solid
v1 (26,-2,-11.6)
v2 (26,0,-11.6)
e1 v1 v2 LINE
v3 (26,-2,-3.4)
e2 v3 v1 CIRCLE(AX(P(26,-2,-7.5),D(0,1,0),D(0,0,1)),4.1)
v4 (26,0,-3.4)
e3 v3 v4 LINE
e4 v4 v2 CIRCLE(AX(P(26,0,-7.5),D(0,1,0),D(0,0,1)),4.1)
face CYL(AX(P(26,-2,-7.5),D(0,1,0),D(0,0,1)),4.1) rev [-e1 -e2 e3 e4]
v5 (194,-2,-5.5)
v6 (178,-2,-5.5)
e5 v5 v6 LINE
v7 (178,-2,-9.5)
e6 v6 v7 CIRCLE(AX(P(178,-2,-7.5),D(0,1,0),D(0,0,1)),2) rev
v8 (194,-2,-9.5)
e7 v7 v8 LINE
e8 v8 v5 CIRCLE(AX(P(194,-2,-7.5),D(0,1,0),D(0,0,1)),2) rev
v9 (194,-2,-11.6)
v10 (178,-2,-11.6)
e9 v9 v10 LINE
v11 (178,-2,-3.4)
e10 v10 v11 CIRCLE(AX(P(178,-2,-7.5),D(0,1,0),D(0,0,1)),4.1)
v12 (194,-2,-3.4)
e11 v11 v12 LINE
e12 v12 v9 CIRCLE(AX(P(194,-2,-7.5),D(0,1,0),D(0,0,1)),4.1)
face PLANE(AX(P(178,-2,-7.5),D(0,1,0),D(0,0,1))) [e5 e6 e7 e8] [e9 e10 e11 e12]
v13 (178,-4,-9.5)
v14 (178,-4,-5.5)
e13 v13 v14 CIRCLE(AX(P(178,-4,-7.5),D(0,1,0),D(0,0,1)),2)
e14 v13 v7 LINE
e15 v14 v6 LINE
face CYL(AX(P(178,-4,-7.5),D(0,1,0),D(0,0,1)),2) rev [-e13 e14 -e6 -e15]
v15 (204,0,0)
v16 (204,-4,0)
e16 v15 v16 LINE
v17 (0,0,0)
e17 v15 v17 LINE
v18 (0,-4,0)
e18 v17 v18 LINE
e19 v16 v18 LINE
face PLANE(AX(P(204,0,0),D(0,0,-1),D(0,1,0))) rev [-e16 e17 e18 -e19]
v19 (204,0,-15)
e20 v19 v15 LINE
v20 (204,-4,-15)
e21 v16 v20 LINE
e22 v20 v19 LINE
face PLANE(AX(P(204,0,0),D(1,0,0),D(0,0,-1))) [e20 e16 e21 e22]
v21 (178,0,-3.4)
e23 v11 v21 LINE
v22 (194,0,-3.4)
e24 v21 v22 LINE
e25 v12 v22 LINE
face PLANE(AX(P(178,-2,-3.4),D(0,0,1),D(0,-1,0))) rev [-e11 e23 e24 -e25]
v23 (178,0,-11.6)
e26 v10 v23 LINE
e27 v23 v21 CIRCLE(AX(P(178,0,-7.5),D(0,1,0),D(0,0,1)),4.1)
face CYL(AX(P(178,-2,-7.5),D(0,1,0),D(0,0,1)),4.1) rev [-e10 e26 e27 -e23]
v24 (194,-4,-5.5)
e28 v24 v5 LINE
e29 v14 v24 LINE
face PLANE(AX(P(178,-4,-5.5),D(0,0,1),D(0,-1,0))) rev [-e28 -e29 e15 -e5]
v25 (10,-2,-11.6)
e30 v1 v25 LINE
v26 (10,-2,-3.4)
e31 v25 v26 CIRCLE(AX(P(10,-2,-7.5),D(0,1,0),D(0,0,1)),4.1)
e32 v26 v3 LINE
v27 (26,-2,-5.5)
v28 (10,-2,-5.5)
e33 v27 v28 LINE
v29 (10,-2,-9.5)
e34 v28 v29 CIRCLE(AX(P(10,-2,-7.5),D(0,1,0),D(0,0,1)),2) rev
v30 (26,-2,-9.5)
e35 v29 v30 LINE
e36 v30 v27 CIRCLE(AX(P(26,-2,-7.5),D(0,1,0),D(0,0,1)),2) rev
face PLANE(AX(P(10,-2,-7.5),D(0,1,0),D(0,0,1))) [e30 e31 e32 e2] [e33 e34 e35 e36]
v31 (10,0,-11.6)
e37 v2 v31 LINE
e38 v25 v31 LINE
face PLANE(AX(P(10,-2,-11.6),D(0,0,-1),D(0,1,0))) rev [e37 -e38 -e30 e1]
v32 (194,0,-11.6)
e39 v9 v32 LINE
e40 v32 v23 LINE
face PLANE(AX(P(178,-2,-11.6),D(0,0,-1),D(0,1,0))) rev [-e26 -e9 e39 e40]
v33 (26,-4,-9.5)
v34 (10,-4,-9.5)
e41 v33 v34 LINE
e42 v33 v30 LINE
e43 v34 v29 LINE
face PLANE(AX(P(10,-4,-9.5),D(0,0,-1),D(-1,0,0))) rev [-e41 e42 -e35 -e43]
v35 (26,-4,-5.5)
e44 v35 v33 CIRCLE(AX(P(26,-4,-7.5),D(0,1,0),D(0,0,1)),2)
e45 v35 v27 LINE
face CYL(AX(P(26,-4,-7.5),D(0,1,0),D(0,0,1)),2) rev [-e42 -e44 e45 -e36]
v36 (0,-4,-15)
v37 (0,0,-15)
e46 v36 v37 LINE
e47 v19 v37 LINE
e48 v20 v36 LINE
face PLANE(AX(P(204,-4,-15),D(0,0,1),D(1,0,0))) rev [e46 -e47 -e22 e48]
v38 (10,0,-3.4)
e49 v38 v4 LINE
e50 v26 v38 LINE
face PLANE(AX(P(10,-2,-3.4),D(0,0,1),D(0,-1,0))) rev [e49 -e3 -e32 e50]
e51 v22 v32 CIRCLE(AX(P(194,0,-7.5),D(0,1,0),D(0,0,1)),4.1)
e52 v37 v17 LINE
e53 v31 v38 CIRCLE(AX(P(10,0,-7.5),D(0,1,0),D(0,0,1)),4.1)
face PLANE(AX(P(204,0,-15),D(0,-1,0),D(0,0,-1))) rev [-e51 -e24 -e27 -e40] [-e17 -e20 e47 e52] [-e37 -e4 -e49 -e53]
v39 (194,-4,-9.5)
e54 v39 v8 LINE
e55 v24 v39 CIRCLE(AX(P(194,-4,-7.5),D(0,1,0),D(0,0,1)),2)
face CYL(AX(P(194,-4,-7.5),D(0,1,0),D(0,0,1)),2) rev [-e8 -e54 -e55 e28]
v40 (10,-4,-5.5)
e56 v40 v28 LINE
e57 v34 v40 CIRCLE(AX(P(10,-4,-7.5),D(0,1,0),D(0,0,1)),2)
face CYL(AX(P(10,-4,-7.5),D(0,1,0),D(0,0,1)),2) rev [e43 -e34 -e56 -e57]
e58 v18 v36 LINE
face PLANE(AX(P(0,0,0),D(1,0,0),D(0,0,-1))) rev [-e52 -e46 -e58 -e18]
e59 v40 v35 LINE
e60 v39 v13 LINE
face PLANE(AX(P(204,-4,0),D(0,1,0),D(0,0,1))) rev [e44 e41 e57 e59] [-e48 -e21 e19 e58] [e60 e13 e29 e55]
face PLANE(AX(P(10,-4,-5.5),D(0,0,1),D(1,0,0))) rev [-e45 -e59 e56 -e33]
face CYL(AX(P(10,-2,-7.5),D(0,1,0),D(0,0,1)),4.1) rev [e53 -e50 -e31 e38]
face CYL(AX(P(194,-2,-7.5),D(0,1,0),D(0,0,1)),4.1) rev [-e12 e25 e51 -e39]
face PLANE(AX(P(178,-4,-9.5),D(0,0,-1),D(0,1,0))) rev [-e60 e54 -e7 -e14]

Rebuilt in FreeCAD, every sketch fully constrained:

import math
import FreeCAD as App
import Part
import Sketcher
from FreeCAD import Vector

doc = App.newDocument("Part")
body = doc.addObject("PartDesign::Body", "Body")

# Sketch on YZ plane
sketch1 = body.newObject("Sketcher::SketchObject", "Sketch")
sketch1.AttachmentSupport = (doc.getObject("YZ_Plane"), [""])
sketch1.MapMode = "FlatFace"
sketch1.addGeometry(Part.LineSegment(Vector(0, 0, 0), Vector(-4, 0, 0)), False)
sketch1.addGeometry(Part.LineSegment(Vector(-4, 0, 0), Vector(-4, -15, 0)), False)
sketch1.addGeometry(Part.LineSegment(Vector(-4, -15, 0), Vector(0, -15, 0)), False)
sketch1.addGeometry(Part.LineSegment(Vector(0, -15, 0), Vector(0, 0, 0)), False)
sketch1.addConstraint(Sketcher.Constraint("Coincident", 0, 2, 1, 1))
sketch1.addConstraint(Sketcher.Constraint("Coincident", 1, 2, 2, 1))
sketch1.addConstraint(Sketcher.Constraint("Coincident", 2, 2, 3, 1))
sketch1.addConstraint(Sketcher.Constraint("Coincident", 3, 2, 0, 1))
sketch1.addConstraint(Sketcher.Constraint("Horizontal", 0))
sketch1.addConstraint(Sketcher.Constraint("Vertical", 1))
sketch1.addConstraint(Sketcher.Constraint("Horizontal", 2))
sketch1.addConstraint(Sketcher.Constraint("Vertical", 3))
sketch1.addConstraint(Sketcher.Constraint("Coincident", 3, 2, -1, 1))
sketch1.addConstraint(Sketcher.Constraint("DistanceX", 0, 2, 0, 1, 4.0))
sketch1.addConstraint(Sketcher.Constraint("DistanceY", 1, 2, 1, 1, 15.0))
pad1 = body.newObject("PartDesign::Pad", "Pad")
pad1.Profile = sketch1
pad1.Length = 204

# Sketch on XZ plane
sketch2 = body.newObject("Sketcher::SketchObject", "Sketch001")
sketch2.AttachmentSupport = (doc.getObject("XZ_Plane"), [""])
sketch2.MapMode = "FlatFace"
sketch2.addGeometry(Part.LineSegment(Vector(26, -9.5, 0), Vector(10, -9.5, 0)), False)
sketch2.addGeometry(Part.ArcOfCircle(Part.Circle(Vector(10, -7.5, 0), Vector(0, 0, 1), 2), math.radians(90), math.radians(270)), False)
sketch2.addGeometry(Part.LineSegment(Vector(10, -5.5, 0), Vector(26, -5.5, 0)), False)
sketch2.addGeometry(Part.ArcOfCircle(Part.Circle(Vector(26, -7.5, 0), Vector(0, 0, 1), 2), math.radians(-90), math.radians(90)), False)
sketch2.addGeometry(Part.LineSegment(Vector(194, -9.5, 0), Vector(178, -9.5, 0)), False)
sketch2.addGeometry(Part.ArcOfCircle(Part.Circle(Vector(178, -7.5, 0), Vector(0, 0, 1), 2), math.radians(90), math.radians(270)), False)
sketch2.addGeometry(Part.LineSegment(Vector(178, -5.5, 0), Vector(194, -5.5, 0)), False)
sketch2.addGeometry(Part.ArcOfCircle(Part.Circle(Vector(194, -7.5, 0), Vector(0, 0, 1), 2), math.radians(-90), math.radians(90)), False)
sketch2.addConstraint(Sketcher.Constraint("Tangent", 0, 2, 1, 2))
sketch2.addConstraint(Sketcher.Constraint("Tangent", 1, 1, 2, 1))
sketch2.addConstraint(Sketcher.Constraint("Tangent", 2, 2, 3, 2))
sketch2.addConstraint(Sketcher.Constraint("Tangent", 3, 1, 0, 1))
sketch2.addConstraint(Sketcher.Constraint("Tangent", 4, 2, 5, 2))
sketch2.addConstraint(Sketcher.Constraint("Tangent", 5, 1, 6, 1))
sketch2.addConstraint(Sketcher.Constraint("Tangent", 6, 2, 7, 2))
sketch2.addConstraint(Sketcher.Constraint("Tangent", 7, 1, 4, 1))
sketch2.addConstraint(Sketcher.Constraint("Horizontal", 0))
sketch2.addConstraint(Sketcher.Constraint("Horizontal", 2))
sketch2.addConstraint(Sketcher.Constraint("Horizontal", 4))
sketch2.addConstraint(Sketcher.Constraint("Horizontal", 6))
sketch2.addConstraint(Sketcher.Constraint("Equal", 3, 5))
sketch2.addConstraint(Sketcher.Constraint("Horizontal", 3, 3, 5, 3))
sketch2.addConstraint(Sketcher.Constraint("Equal", 2, 4))
sketch2.addConstraint(Sketcher.Constraint("Radius", 1, 2.0))
sketch2.addConstraint(Sketcher.Constraint("DistanceX", 0, 2, 0, 1, 16.0))
sketch2.addConstraint(Sketcher.Constraint("DistanceX", -1, 1, 1, 3, 10.0))
sketch2.addConstraint(Sketcher.Constraint("DistanceX", -1, 1, 5, 3, 178.0))
sketch2.addConstraint(Sketcher.Constraint("DistanceY", 1, 3, -1, 1, 7.5))
pocket1 = body.newObject("PartDesign::Pocket", "Pocket")
pocket1.Profile = sketch2
pocket1.Type = "ThroughAll"
pocket1.Reversed = True

# Sketch on XZ plane
sketch3 = body.newObject("Sketcher::SketchObject", "Sketch002")
sketch3.AttachmentSupport = (doc.getObject("XZ_Plane"), [""])
sketch3.MapMode = "FlatFace"
sketch3.addGeometry(Part.LineSegment(Vector(26, -11.6, 0), Vector(10, -11.6, 0)), False)
sketch3.addGeometry(Part.ArcOfCircle(Part.Circle(Vector(10, -7.5, 0), Vector(0, 0, 1), 4.1), math.radians(90), math.radians(270)), False)
sketch3.addGeometry(Part.LineSegment(Vector(10, -3.4, 0), Vector(26, -3.4, 0)), False)
sketch3.addGeometry(Part.ArcOfCircle(Part.Circle(Vector(26, -7.5, 0), Vector(0, 0, 1), 4.1), math.radians(-90), math.radians(90)), False)
sketch3.addGeometry(Part.LineSegment(Vector(194, -11.6, 0), Vector(178, -11.6, 0)), False)
sketch3.addGeometry(Part.ArcOfCircle(Part.Circle(Vector(178, -7.5, 0), Vector(0, 0, 1), 4.1), math.radians(90), math.radians(270)), False)
sketch3.addGeometry(Part.LineSegment(Vector(178, -3.4, 0), Vector(194, -3.4, 0)), False)
sketch3.addGeometry(Part.ArcOfCircle(Part.Circle(Vector(194, -7.5, 0), Vector(0, 0, 1), 4.1), math.radians(-90), math.radians(90)), False)
sketch3.addConstraint(Sketcher.Constraint("Tangent", 0, 2, 1, 2))
sketch3.addConstraint(Sketcher.Constraint("Tangent", 1, 1, 2, 1))
sketch3.addConstraint(Sketcher.Constraint("Tangent", 2, 2, 3, 2))
sketch3.addConstraint(Sketcher.Constraint("Tangent", 3, 1, 0, 1))
sketch3.addConstraint(Sketcher.Constraint("Tangent", 4, 2, 5, 2))
sketch3.addConstraint(Sketcher.Constraint("Tangent", 5, 1, 6, 1))
sketch3.addConstraint(Sketcher.Constraint("Tangent", 6, 2, 7, 2))
sketch3.addConstraint(Sketcher.Constraint("Tangent", 7, 1, 4, 1))
sketch3.addConstraint(Sketcher.Constraint("Horizontal", 0))
sketch3.addConstraint(Sketcher.Constraint("Horizontal", 2))
sketch3.addConstraint(Sketcher.Constraint("Horizontal", 4))
sketch3.addConstraint(Sketcher.Constraint("Horizontal", 6))
sketch3.addConstraint(Sketcher.Constraint("Equal", 3, 5))
sketch3.addConstraint(Sketcher.Constraint("Horizontal", 3, 3, 5, 3))
sketch3.addConstraint(Sketcher.Constraint("Equal", 2, 4))
sketch3.addConstraint(Sketcher.Constraint("Radius", 1, 4.1))
sketch3.addConstraint(Sketcher.Constraint("DistanceX", 0, 2, 0, 1, 16.0))
sketch3.addConstraint(Sketcher.Constraint("DistanceX", -1, 1, 1, 3, 10.0))
sketch3.addConstraint(Sketcher.Constraint("DistanceX", -1, 1, 5, 3, 178.0))
sketch3.addConstraint(Sketcher.Constraint("DistanceY", 1, 3, -1, 1, 7.5))
pocket2 = body.newObject("PartDesign::Pocket", "Pocket001")
pocket2.Profile = sketch3
pocket2.Length = 2
pocket2.Reversed = True

doc.recompute()
